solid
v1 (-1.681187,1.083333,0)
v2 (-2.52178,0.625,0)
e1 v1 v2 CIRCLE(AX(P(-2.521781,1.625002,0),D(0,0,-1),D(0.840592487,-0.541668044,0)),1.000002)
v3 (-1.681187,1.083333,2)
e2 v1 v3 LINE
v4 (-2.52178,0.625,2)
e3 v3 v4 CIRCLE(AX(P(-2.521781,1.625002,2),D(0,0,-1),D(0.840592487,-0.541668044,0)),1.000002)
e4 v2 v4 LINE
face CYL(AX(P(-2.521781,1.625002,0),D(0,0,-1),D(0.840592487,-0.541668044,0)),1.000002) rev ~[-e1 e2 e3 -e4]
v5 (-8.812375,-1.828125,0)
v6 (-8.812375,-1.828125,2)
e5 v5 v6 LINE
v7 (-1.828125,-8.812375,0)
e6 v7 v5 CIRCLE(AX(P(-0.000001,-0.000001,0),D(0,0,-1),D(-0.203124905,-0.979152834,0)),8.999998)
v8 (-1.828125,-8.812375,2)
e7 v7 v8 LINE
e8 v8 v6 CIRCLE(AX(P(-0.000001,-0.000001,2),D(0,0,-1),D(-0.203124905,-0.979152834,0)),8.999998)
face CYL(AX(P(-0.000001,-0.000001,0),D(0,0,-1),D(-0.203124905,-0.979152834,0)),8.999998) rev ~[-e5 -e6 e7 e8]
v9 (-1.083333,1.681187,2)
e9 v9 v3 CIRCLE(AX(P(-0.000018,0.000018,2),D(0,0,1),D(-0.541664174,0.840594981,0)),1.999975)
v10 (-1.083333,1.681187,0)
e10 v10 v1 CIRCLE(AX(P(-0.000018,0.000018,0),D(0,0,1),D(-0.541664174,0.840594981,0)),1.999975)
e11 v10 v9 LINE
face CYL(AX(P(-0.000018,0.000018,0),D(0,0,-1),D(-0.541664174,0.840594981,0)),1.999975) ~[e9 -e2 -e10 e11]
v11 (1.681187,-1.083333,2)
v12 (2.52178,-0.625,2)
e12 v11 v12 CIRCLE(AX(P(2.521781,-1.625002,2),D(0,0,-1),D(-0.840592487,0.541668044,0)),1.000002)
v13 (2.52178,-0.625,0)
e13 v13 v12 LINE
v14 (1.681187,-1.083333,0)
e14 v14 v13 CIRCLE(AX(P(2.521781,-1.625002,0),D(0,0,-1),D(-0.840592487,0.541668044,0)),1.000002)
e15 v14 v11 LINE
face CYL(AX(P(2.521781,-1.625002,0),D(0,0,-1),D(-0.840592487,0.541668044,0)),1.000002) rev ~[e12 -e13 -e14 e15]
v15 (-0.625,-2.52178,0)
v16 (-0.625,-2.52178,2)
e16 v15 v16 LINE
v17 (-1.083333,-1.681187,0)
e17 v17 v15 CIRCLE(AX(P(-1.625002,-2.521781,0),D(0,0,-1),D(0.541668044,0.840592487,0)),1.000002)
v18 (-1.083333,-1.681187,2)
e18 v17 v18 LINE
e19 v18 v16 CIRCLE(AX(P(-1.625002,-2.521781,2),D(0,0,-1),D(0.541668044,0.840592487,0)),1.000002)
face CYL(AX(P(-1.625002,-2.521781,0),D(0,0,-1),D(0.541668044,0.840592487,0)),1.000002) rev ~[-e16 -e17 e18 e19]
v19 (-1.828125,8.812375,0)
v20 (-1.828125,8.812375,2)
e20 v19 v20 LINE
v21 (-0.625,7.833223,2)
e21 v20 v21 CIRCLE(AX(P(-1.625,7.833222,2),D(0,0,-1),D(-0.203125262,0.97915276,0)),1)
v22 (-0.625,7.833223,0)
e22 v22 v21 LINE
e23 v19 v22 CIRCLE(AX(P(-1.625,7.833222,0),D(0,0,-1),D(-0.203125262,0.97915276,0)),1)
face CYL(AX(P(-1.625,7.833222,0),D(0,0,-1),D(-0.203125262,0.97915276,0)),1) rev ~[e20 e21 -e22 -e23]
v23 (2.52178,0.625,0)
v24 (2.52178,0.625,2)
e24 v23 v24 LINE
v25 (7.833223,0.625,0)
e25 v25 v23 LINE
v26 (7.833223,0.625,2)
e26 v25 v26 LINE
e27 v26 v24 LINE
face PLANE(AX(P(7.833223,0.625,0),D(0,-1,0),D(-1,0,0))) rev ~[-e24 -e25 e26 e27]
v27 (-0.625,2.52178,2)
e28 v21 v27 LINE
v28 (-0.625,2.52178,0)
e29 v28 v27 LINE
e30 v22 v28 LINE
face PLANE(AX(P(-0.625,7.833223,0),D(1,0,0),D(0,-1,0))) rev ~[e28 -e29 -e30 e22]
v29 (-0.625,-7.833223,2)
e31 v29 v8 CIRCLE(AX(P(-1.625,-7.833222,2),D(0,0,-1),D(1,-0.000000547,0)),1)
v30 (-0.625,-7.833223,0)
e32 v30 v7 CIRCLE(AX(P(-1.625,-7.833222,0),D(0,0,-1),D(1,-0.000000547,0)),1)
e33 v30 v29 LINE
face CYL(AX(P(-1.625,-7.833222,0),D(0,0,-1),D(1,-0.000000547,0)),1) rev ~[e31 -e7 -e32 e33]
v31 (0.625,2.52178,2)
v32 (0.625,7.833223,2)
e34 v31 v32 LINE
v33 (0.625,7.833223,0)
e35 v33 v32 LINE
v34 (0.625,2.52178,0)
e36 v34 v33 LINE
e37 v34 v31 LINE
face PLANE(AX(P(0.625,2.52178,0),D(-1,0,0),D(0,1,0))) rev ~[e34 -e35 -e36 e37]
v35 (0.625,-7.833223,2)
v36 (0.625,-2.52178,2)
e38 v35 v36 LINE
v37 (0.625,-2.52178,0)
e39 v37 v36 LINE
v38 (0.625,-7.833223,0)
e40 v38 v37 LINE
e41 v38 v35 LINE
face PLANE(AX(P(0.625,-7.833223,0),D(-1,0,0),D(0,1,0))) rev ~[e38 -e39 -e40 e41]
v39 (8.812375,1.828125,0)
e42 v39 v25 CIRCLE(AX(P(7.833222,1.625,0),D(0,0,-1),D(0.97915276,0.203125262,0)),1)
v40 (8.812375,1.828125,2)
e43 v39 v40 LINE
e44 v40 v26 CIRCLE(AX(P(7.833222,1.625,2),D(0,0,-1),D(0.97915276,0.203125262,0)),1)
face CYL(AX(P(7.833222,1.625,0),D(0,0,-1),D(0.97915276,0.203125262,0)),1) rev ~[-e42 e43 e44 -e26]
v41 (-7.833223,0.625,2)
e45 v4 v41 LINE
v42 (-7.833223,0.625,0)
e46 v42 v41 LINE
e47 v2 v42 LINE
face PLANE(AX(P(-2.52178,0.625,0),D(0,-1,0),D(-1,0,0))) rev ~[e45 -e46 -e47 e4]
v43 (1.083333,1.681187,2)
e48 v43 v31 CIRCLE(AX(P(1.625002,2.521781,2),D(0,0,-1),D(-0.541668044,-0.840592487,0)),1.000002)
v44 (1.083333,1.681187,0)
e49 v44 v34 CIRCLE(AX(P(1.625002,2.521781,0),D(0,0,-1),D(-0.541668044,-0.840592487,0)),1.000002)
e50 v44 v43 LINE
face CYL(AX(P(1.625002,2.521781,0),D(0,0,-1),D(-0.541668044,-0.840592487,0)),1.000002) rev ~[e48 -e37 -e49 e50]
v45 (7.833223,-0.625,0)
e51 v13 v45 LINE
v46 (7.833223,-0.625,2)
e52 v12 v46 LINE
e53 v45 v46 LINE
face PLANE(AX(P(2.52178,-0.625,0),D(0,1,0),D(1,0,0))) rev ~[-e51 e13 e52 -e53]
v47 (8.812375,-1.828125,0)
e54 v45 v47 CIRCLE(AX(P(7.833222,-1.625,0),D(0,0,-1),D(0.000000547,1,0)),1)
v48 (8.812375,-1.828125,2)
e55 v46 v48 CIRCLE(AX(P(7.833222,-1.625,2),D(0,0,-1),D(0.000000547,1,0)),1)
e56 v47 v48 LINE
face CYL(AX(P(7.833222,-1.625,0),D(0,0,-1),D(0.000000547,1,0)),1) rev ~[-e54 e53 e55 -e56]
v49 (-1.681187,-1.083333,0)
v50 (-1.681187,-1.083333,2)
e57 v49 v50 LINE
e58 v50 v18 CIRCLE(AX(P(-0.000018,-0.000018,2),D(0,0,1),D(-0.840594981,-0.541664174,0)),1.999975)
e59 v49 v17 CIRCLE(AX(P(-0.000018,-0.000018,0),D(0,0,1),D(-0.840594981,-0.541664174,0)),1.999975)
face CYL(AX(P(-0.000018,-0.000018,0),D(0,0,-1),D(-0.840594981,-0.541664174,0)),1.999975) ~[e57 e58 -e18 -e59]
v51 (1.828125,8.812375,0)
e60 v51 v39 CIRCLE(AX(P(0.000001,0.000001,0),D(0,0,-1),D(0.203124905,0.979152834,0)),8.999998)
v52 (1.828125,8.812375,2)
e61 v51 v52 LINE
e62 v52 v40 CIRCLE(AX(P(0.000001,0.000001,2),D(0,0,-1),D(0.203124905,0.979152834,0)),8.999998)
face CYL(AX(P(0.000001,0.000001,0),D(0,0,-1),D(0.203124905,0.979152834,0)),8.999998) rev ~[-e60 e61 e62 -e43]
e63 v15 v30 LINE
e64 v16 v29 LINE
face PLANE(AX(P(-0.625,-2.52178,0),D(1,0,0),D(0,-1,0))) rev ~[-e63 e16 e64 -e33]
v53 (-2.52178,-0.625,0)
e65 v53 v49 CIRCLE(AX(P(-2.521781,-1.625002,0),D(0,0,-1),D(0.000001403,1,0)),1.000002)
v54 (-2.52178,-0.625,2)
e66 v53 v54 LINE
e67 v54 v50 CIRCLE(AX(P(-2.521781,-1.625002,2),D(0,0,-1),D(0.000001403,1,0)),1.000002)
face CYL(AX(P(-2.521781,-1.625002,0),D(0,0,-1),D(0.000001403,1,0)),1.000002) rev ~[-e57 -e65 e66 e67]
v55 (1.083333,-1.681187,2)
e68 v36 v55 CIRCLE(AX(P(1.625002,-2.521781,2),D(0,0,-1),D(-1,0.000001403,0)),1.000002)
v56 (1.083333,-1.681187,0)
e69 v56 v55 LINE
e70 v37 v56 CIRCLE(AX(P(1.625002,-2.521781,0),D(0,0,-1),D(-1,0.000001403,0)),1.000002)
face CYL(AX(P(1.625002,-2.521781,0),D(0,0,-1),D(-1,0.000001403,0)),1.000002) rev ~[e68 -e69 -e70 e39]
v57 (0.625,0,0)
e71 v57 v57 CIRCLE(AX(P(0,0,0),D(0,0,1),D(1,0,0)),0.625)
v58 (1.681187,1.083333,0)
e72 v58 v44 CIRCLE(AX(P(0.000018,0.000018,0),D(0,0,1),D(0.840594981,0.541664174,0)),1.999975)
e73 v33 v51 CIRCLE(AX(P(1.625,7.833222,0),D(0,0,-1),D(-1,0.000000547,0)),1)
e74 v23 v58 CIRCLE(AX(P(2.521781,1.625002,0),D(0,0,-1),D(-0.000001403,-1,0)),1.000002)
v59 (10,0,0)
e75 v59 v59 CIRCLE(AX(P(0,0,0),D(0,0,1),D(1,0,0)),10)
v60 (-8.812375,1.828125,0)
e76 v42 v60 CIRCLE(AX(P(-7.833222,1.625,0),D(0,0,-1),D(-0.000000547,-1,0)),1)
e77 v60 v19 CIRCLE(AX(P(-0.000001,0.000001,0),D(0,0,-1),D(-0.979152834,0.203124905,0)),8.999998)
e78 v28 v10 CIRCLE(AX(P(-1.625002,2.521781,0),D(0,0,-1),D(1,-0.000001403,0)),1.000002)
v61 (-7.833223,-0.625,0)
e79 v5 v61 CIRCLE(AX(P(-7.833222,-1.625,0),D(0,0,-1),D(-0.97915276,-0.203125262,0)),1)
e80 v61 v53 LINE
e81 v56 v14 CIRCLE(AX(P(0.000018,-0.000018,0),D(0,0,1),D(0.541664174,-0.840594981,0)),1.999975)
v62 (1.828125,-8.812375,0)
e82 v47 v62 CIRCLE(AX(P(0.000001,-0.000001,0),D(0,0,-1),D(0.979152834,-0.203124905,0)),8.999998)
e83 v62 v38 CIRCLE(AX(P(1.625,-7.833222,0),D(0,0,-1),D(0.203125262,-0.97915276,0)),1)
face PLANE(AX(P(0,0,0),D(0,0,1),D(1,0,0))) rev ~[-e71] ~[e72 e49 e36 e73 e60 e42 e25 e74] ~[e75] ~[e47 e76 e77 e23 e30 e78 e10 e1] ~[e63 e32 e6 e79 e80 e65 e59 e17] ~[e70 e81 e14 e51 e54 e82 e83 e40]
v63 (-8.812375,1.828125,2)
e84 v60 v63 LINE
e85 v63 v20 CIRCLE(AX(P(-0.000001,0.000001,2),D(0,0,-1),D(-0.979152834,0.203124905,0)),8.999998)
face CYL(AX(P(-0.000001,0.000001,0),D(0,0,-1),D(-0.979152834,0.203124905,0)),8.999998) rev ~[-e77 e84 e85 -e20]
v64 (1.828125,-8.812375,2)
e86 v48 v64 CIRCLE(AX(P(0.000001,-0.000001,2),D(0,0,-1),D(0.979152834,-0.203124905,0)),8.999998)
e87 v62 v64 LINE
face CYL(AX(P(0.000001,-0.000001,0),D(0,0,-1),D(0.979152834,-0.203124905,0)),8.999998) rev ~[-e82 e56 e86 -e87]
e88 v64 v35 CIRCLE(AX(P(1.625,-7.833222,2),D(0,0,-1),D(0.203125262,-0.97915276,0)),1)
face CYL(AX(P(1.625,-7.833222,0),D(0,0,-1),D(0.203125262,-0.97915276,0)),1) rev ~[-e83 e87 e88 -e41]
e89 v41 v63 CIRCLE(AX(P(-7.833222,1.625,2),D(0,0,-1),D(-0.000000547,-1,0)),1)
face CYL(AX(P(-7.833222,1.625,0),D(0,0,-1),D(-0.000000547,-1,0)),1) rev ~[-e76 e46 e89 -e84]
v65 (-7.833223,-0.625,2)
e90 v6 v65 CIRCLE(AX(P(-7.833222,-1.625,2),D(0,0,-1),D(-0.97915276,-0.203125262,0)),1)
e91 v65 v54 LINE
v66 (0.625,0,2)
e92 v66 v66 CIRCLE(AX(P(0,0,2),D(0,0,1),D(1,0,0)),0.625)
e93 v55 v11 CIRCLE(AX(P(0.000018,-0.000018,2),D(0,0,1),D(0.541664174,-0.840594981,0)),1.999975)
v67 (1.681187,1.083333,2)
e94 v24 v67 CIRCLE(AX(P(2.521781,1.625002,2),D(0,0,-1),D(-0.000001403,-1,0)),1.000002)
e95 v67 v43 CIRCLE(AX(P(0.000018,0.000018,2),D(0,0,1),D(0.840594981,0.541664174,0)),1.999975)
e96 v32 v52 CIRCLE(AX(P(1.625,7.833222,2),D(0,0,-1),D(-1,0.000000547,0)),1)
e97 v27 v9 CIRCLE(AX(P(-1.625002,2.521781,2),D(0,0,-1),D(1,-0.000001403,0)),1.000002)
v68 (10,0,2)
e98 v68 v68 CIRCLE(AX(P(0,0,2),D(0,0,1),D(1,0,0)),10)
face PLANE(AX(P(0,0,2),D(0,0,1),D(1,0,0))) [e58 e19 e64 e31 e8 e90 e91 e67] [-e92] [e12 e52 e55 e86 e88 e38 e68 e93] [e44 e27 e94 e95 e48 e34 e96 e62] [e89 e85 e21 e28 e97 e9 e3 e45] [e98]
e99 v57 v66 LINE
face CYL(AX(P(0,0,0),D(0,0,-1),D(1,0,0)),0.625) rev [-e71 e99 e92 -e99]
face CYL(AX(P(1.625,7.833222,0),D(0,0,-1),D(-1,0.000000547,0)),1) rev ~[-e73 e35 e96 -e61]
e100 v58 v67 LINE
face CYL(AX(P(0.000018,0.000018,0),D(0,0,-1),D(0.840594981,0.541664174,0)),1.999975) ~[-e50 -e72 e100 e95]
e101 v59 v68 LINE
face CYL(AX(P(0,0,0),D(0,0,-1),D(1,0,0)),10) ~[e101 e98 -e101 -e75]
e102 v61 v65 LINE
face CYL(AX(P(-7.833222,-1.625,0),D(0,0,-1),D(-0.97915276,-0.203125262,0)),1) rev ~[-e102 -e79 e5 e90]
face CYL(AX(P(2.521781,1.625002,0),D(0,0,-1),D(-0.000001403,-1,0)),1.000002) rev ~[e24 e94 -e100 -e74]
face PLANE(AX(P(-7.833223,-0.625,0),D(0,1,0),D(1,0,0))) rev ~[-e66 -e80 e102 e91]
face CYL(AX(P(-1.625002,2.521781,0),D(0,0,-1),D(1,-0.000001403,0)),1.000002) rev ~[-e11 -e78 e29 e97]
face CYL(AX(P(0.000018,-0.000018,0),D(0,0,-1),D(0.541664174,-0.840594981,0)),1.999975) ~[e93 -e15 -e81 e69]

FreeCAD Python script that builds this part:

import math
import FreeCAD as App
import Part
import Sketcher

V = App.Vector

doc = App.newDocument("Part")
params = doc.addObject("Spreadsheet::Sheet", "Params")
for row, (alias, value) in enumerate([
    ("sketch1_diameter", "20 mm"),
    ("sketch1_radius", "1 mm"),
    ("sketch1_radius2", "8.999998 mm"),
    ("sketch1_diameter2", "1.25 mm"),
    ("pad1_length", "2 mm"),
], start=1):
    params.set(f"A{row}", alias)
    params.set(f"B{row}", "=" + value)
    params.setAlias(f"B{row}", alias)

body = doc.addObject("PartDesign::Body", "Body")

sketch1 = body.newObject("Sketcher::SketchObject", "Sketch")
sketch1.AttachmentSupport = (doc.getObject("XY_Plane"), [""])
sketch1.MapMode = "FlatFace"
sketch1.addGeometry(Part.Circle(V(0, 0, 0), V(0, 0, 1), 10), False)
sketch1.addGeometry(Part.ArcOfCircle(Part.Circle(V(-1.6, -2.5, 0), V(0, 0, 1), 1), math.radians(0), math.radians(57)), False)
sketch1.addGeometry(Part.LineSegment(V(-0.6, -2.5, 0), V(-0.6, -7.8, 0)), False)
sketch1.addGeometry(Part.ArcOfCircle(Part.Circle(V(-1.6, -7.8, 0), V(0, 0, 1), 1), math.radians(-102), math.radians(0)), False)
sketch1.addGeometry(Part.ArcOfCircle(Part.Circle(V(0, 0, 0), V(0, 0, 1), 9), math.radians(-168), math.radians(-102)), False)
sketch1.addGeometry(Part.ArcOfCircle(Part.Circle(V(-7.8, -1.6, 0), V(0, 0, 1), 1), math.radians(90), math.radians(192)), False)
sketch1.addGeometry(Part.LineSegment(V(-7.8, -0.6, 0), V(-2.5, -0.6, 0)), False)
sketch1.addGeometry(Part.ArcOfCircle(Part.Circle(V(-2.5, -1.6, 0), V(0, 0, 1), 1), math.radians(33), math.radians(90)), False)
sketch1.addGeometry(Part.ArcOfCircle(Part.Circle(V(0, 0, 0), V(0, 0, 1), 2), math.radians(-147), math.radians(-123)), False)
sketch1.addGeometry(Part.ArcOfCircle(Part.Circle(V(2.5, -1.6, 0), V(0, 0, 1), 1), math.radians(90), math.radians(147)), False)
sketch1.addGeometry(Part.LineSegment(V(2.5, -0.6, 0), V(7.8, -0.6, 0)), False)
sketch1.addGeometry(Part.ArcOfCircle(Part.Circle(V(7.8, -1.6, 0), V(0, 0, 1), 1), math.radians(-12), math.radians(90)), False)
sketch1.addGeometry(Part.ArcOfCircle(Part.Circle(V(0, 0, 0), V(0, 0, 1), 9), math.radians(-78), math.radians(-12)), False)
sketch1.addGeometry(Part.ArcOfCircle(Part.Circle(V(1.6, -7.8, 0), V(0, 0, 1), 1), math.radians(-180), math.radians(-78)), False)
sketch1.addGeometry(Part.LineSegment(V(0.6, -7.8, 0), V(0.6, -2.5, 0)), False)
sketch1.addGeometry(Part.ArcOfCircle(Part.Circle(V(1.6, -2.5, 0), V(0, 0, 1), 1), math.radians(123), math.radians(180)), False)
sketch1.addGeometry(Part.ArcOfCircle(Part.Circle(V(0, 0, 0), V(0, 0, 1), 2), math.radians(-57), math.radians(-33)), False)
sketch1.addGeometry(Part.Circle(V(0, 0, 0), V(0, 0, 1), 0.6), False)
sketch1.addGeometry(Part.LineSegment(V(-0.6, 7.8, 0), V(-0.6, 2.5, 0)), False)
sketch1.addGeometry(Part.ArcOfCircle(Part.Circle(V(-1.6, 2.5, 0), V(0, 0, 1), 1), math.radians(-57), math.radians(0)), False)
sketch1.addGeometry(Part.ArcOfCircle(Part.Circle(V(0, 0, 0), V(0, 0, 1), 2), math.radians(123), math.radians(147)), False)
sketch1.addGeometry(Part.ArcOfCircle(Part.Circle(V(-2.5, 1.6, 0), V(0, 0, 1), 1), math.radians(-90), math.radians(-33)), False)
sketch1.addGeometry(Part.LineSegment(V(-2.5, 0.6, 0), V(-7.8, 0.6, 0)), False)
sketch1.addGeometry(Part.ArcOfCircle(Part.Circle(V(-7.8, 1.6, 0), V(0, 0, 1), 1), math.radians(168), math.radians(270)), False)
sketch1.addGeometry(Part.ArcOfCircle(Part.Circle(V(0, 0, 0), V(0, 0, 1), 9), math.radians(102), math.radians(168)), False)
sketch1.addGeometry(Part.ArcOfCircle(Part.Circle(V(-1.6, 7.8, 0), V(0, 0, 1), 1), math.radians(0), math.radians(102)), False)
sketch1.addGeometry(Part.ArcOfCircle(Part.Circle(V(1.6, 7.8, 0), V(0, 0, 1), 1), math.radians(78), math.radians(180)), False)
sketch1.addGeometry(Part.ArcOfCircle(Part.Circle(V(0, 0, 0), V(0, 0, 1), 9), math.radians(12), math.radians(78)), False)
sketch1.addGeometry(Part.ArcOfCircle(Part.Circle(V(7.8, 1.6, 0), V(0, 0, 1), 1), math.radians(-90), math.radians(12)), False)
sketch1.addGeometry(Part.LineSegment(V(7.8, 0.6, 0), V(2.5, 0.6, 0)), False)
sketch1.addGeometry(Part.ArcOfCircle(Part.Circle(V(2.5, 1.6, 0), V(0, 0, 1), 1), math.radians(-147), math.radians(-90)), False)
sketch1.addGeometry(Part.ArcOfCircle(Part.Circle(V(0, 0, 0), V(0, 0, 1), 2), math.radians(33), math.radians(57)), False)
sketch1.addGeometry(Part.ArcOfCircle(Part.Circle(V(1.6, 2.5, 0), V(0, 0, 1), 1), math.radians(-180), math.radians(-123)), False)
sketch1.addGeometry(Part.LineSegment(V(0.6, 2.5, 0), V(0.6, 7.8, 0)), False)
sketch1.addConstraint(Sketcher.Constraint("Tangent", 1, 1, 2, 1))
sketch1.addConstraint(Sketcher.Constraint("Tangent", 2, 2, 3, 2))
sketch1.addConstraint(Sketcher.Constraint("Tangent", 3, 1, 4, 2))
sketch1.addConstraint(Sketcher.Constraint("Tangent", 4, 1, 5, 2))
sketch1.addConstraint(Sketcher.Constraint("Tangent", 5, 1, 6, 1))
sketch1.addConstraint(Sketcher.Constraint("Tangent", 6, 2, 7, 2))
sketch1.addConstraint(Sketcher.Constraint("Coincident", 7, 1, 8, 1))
sketch1.addConstraint(Sketcher.Constraint("Coincident", 8, 2, 1, 2))
sketch1.addConstraint(Sketcher.Constraint("Tangent", 9, 1, 10, 1))
sketch1.addConstraint(Sketcher.Constraint("Tangent", 10, 2, 11, 2))
sketch1.addConstraint(Sketcher.Constraint("Tangent", 11, 1, 12, 2))
sketch1.addConstraint(Sketcher.Constraint("Tangent", 12, 1, 13, 2))
sketch1.addConstraint(Sketcher.Constraint("Tangent", 13, 1, 14, 1))
sketch1.addConstraint(Sketcher.Constraint("Tangent", 14, 2, 15, 2))
sketch1.addConstraint(Sketcher.Constraint("Coincident", 15, 1, 16, 1))
sketch1.addConstraint(Sketcher.Constraint("Coincident", 16, 2, 9, 2))
sketch1.addConstraint(Sketcher.Constraint("Tangent", 18, 2, 19, 2))
sketch1.addConstraint(Sketcher.Constraint("Coincident", 19, 1, 20, 1))
sketch1.addConstraint(Sketcher.Constraint("Coincident", 20, 2, 21, 2))
sketch1.addConstraint(Sketcher.Constraint("Tangent", 21, 1, 22, 1))
sketch1.addConstraint(Sketcher.Constraint("Tangent", 22, 2, 23, 2))
sketch1.addConstraint(Sketcher.Constraint("Tangent", 23, 1, 24, 2))
sketch1.addConstraint(Sketcher.Constraint("Tangent", 24, 1, 25, 2))
sketch1.addConstraint(Sketcher.Constraint("Tangent", 25, 1, 18, 1))
sketch1.addConstraint(Sketcher.Constraint("Tangent", 26, 1, 27, 2))
sketch1.addConstraint(Sketcher.Constraint("Tangent", 27, 1, 28, 2))
sketch1.addConstraint(Sketcher.Constraint("Tangent", 28, 1, 29, 1))
sketch1.addConstraint(Sketcher.Constraint("Tangent", 29, 2, 30, 2))
sketch1.addConstraint(Sketcher.Constraint("Coincident", 30, 1, 31, 1))
sketch1.addConstraint(Sketcher.Constraint("Coincident", 31, 2, 32, 2))
sketch1.addConstraint(Sketcher.Constraint("Tangent", 32, 1, 33, 1))
sketch1.addConstraint(Sketcher.Constraint("Tangent", 33, 2, 26, 2))
sketch1.addConstraint(Sketcher.Constraint("Vertical", 2))
sketch1.addConstraint(Sketcher.Constraint("Horizontal", 6))
sketch1.addConstraint(Sketcher.Constraint("Horizontal", 10))
sketch1.addConstraint(Sketcher.Constraint("Vertical", 14))
sketch1.addConstraint(Sketcher.Constraint("Vertical", 18))
sketch1.addConstraint(Sketcher.Constraint("Horizontal", 22))
sketch1.addConstraint(Sketcher.Constraint("Horizontal", 29))
sketch1.addConstraint(Sketcher.Constraint("Vertical", 33))
sketch1.addConstraint(Sketcher.Constraint("Coincident", 0, 3, -1, 1))
sketch1.addConstraint(Sketcher.Constraint("Coincident", 4, 3, -1, 1))
sketch1.addConstraint(Sketcher.Constraint("Coincident", 12, 3, -1, 1))
sketch1.addConstraint(Sketcher.Constraint("Coincident", 17, 3, -1, 1))
sketch1.addConstraint(Sketcher.Constraint("Coincident", 24, 3, -1, 1))
sketch1.addConstraint(Sketcher.Constraint("Coincident", 27, 3, -1, 1))
sketch1.addConstraint(Sketcher.Constraint("Equal", 3, 5))
sketch1.addConstraint(Sketcher.Constraint("Equal", 1, 7))
sketch1.addConstraint(Sketcher.Constraint("Equal", 7, 9))
sketch1.addConstraint(Sketcher.Constraint("Equal", 5, 11))
sketch1.addConstraint(Sketcher.Constraint("Equal", 4, 12))
sketch1.addConstraint(Sketcher.Constraint("Equal", 11, 13))
sketch1.addConstraint(Sketcher.Constraint("Equal", 9, 15))
sketch1.addConstraint(Sketcher.Constraint("Equal", 8, 16))
sketch1.addConstraint(Sketcher.Constraint("Equal", 15, 19))
sketch1.addConstraint(Sketcher.Constraint("Equal", 16, 20))
sketch1.addConstraint(Sketcher.Constraint("Equal", 19, 21))
sketch1.addConstraint(Sketcher.Constraint("Equal", 13, 23))
sketch1.addConstraint(Sketcher.Constraint("Equal", 12, 24))
sketch1.addConstraint(Sketcher.Constraint("Equal", 23, 25))
sketch1.addConstraint(Sketcher.Constraint("Equal", 25, 26))
sketch1.addConstraint(Sketcher.Constraint("Equal", 24, 27))
sketch1.addConstraint(Sketcher.Constraint("Equal", 26, 28))
sketch1.addConstraint(Sketcher.Constraint("Equal", 21, 30))
sketch1.addConstraint(Sketcher.Constraint("Equal", 20, 31))
sketch1.addConstraint(Sketcher.Constraint("Equal", 30, 32))
sketch1.addConstraint(Sketcher.Constraint("Symmetric", 15, 3, 19, 3, -1, 1))
sketch1.addConstraint(Sketcher.Constraint("Symmetric", 9, 3, 21, 3, -1, 1))
sketch1.addConstraint(Sketcher.Constraint("Symmetric", 7, 3, 30, 3, -1, 1))
sketch1.addConstraint(Sketcher.Constraint("Symmetric", 1, 3, 32, 3, -1, 1))
sketch1.addConstraint(Sketcher.Constraint("Symmetric", 7, 3, 9, 3, -2))
sketch1.addConstraint(Sketcher.Constraint("Symmetric", 1, 3, 15, 3, -2))
sketch1.addConstraint(Sketcher.Constraint("Horizontal", 8, 2, 15, 1))
sketch1.addConstraint(Sketcher.Constraint("Horizontal", 7, 1, 16, 2))
sketch1.addConstraint(Sketcher.Constraint("Horizontal", 20, 2, 30, 1))
sketch1.addConstraint(Sketcher.Constraint("Horizontal", 19, 1, 31, 2))
sketch1.addConstraint(Sketcher.Constraint("Vertical", 8, 2, 19, 1))
sketch1.addConstraint(Sketcher.Constraint("Vertical", 7, 1, 20, 2))
sketch1.addConstraint(Sketcher.Constraint("Equal", 29, 2))
sketch1.addConstraint(Sketcher.Constraint("Diameter", 0, 20.0))
sketch1.addConstraint(Sketcher.Constraint("Radius", 3, 1.0))
sketch1.addConstraint(Sketcher.Constraint("Radius", 4, 8.999998))
sketch1.addConstraint(Sketcher.Constraint("Diameter", 17, 1.25))
sketch1.addConstraint(Sketcher.Constraint("DistanceX", 3, 3, 13, 3, 3.25))
sketch1.addConstraint(Sketcher.Constraint("DistanceY", 5, 3, 23, 3, 3.25))
sketch1.addConstraint(Sketcher.Constraint("Radius", 1, 1.000002))
sketch1.addConstraint(Sketcher.Constraint("Radius", 8, 1.999975))
sketch1.addConstraint(Sketcher.Constraint("DistanceX", 8, 3, 9, 3, 2.5218))
sketch1.addConstraint(Sketcher.Constraint("DistanceY", 7, 3, 7, 1, 0.541669))
sketch1.addConstraint(Sketcher.Constraint("DistanceX", 1, 3, 8, 2, 0.541669))
sketch1.setExpression("Constraints[79]", "Params.sketch1_diameter")
sketch1.setExpression("Constraints[80]", "Params.sketch1_radius")
sketch1.setExpression("Constraints[81]", "Params.sketch1_radius2")
sketch1.setExpression("Constraints[82]", "Params.sketch1_diameter2")
pad1 = body.newObject("PartDesign::Pad", "Pad")
pad1.Profile = sketch1
pad1.setExpression("Length", "Params.pad1_length")

doc.recompute()
